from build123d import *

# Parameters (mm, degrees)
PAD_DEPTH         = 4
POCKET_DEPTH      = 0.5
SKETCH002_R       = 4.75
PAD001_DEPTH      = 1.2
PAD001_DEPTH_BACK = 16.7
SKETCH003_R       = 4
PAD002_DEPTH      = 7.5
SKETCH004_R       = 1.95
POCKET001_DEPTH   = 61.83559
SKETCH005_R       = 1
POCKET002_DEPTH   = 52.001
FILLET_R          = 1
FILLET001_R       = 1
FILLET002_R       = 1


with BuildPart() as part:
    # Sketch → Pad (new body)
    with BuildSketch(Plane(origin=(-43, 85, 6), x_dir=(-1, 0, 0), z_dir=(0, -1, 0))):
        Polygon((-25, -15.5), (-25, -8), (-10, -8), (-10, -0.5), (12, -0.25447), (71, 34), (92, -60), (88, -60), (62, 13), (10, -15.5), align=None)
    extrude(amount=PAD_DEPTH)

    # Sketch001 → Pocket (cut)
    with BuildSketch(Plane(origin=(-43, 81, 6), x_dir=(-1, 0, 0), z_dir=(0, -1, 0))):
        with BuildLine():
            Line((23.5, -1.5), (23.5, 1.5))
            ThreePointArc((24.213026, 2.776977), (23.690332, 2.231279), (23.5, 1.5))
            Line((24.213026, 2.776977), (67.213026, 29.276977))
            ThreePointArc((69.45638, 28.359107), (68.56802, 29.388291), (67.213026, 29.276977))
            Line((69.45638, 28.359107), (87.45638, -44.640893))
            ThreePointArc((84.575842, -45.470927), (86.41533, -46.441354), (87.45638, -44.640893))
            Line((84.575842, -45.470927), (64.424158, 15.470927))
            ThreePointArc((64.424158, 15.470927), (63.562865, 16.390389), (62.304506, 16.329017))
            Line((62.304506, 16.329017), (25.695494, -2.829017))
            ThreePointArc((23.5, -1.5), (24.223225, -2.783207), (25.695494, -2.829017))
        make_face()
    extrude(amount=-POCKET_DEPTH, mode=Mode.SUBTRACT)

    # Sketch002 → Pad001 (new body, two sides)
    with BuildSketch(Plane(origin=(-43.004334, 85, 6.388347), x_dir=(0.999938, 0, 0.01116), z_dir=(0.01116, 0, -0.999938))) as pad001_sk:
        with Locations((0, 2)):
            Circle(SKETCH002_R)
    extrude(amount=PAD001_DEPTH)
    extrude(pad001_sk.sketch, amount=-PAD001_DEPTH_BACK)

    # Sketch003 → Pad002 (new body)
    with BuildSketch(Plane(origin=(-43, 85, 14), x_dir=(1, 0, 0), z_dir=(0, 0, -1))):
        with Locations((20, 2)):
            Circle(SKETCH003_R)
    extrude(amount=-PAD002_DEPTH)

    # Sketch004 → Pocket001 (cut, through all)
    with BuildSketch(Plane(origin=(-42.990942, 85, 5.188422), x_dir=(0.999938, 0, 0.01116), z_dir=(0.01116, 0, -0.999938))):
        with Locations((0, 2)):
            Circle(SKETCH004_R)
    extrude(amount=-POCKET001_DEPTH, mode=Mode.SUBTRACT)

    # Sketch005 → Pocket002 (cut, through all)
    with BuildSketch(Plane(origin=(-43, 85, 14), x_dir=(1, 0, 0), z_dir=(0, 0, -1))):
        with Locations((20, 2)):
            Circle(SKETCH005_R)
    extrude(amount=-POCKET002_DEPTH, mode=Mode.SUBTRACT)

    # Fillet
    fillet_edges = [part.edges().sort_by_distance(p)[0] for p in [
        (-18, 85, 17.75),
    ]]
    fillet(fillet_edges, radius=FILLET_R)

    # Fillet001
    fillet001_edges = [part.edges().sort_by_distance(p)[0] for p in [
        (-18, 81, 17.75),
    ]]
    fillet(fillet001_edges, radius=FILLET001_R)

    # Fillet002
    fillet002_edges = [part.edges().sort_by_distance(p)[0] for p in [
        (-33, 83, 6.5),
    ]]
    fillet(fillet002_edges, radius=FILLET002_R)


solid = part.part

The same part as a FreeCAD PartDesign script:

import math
import FreeCAD as App
import Part
import Sketcher


def edges_at(feature, points):
    """Names of the edges that pass closest to the given points."""
    edges = feature.Shape.Edges
    near = lambda p: min(range(len(edges)), key=lambda i: edges[i].distToShape(Part.Vertex(*p))[0])
    return sorted({f"Edge{near(p) + 1}" for p in points})

doc = App.newDocument("Part")
body = doc.addObject("PartDesign::Body", "Body")

sketch1 = doc.addObject("Sketcher::SketchObject", "Sketch")
body.addObject(sketch1)
sketch1.AttachmentSupport = (doc.XZ_Plane, [""])
sketch1.MapMode = "FlatFace"
sketch1.AttachmentOffset = App.Placement(App.Vector(0, 0, -85), App.Rotation())
sketch1.addGeometry(Part.LineSegment(App.Vector(-18, 14, 0), App.Vector(-18, 21.5, 0)), False)
sketch1.addGeometry(Part.LineSegment(App.Vector(-18, 21.5, 0), App.Vector(-53, 21.5, 0)), False)
sketch1.addGeometry(Part.LineSegment(App.Vector(-53, 21.5, 0), App.Vector(-105, -7, 0)), False)
sketch1.addGeometry(Part.LineSegment(App.Vector(-105, -7, 0), App.Vector(-131, 66, 0)), False)
sketch1.addGeometry(Part.LineSegment(App.Vector(-131, 66, 0), App.Vector(-135, 66, 0)), False)
sketch1.addGeometry(Part.LineSegment(App.Vector(-135, 66, 0), App.Vector(-114, -28, 0)), False)
sketch1.addGeometry(Part.LineSegment(App.Vector(-114, -28, 0), App.Vector(-55, 6.3, 0)), False)
sketch1.addGeometry(Part.LineSegment(App.Vector(-55, 6.3, 0), App.Vector(-33, 6.5, 0)), False)
sketch1.addGeometry(Part.LineSegment(App.Vector(-33, 6.5, 0), App.Vector(-33, 14, 0)), False)
sketch1.addGeometry(Part.LineSegment(App.Vector(-33, 14, 0), App.Vector(-18, 14, 0)), False)
sketch1.addConstraint(Sketcher.Constraint("Coincident", 0, 2, 1, 1))
sketch1.addConstraint(Sketcher.Constraint("Coincident", 1, 2, 2, 1))
sketch1.addConstraint(Sketcher.Constraint("Coincident", 2, 2, 3, 1))
sketch1.addConstraint(Sketcher.Constraint("Coincident", 3, 2, 4, 1))
sketch1.addConstraint(Sketcher.Constraint("Coincident", 4, 2, 5, 1))
sketch1.addConstraint(Sketcher.Constraint("Coincident", 5, 2, 6, 1))
sketch1.addConstraint(Sketcher.Constraint("Coincident", 6, 2, 7, 1))
sketch1.addConstraint(Sketcher.Constraint("Coincident", 7, 2, 8, 1))
sketch1.addConstraint(Sketcher.Constraint("Coincident", 8, 2, 9, 1))
sketch1.addConstraint(Sketcher.Constraint("Coincident", 9, 2, 0, 1))
sketch1.addConstraint(Sketcher.Constraint("Vertical", 0))
sketch1.addConstraint(Sketcher.Constraint("Horizontal", 1))
sketch1.addConstraint(Sketcher.Constraint("Horizontal", 4))
sketch1.addConstraint(Sketcher.Constraint("Vertical", 8))
sketch1.addConstraint(Sketcher.Constraint("Horizontal", 9))
sketch1.addConstraint(Sketcher.Constraint("Equal", 0, 8))
sketch1.addConstraint(Sketcher.Constraint("DistanceX", 1, 2, 1, 1, 35.0))
sketch1.addConstraint(Sketcher.Constraint("DistanceX", 4, 2, 4, 1, 4.0))
sketch1.addConstraint(Sketcher.Constraint("DistanceX", 9, 1, 9, 2, 15.0))
sketch1.addConstraint(Sketcher.Constraint("DistanceY", 0, 1, 0, 2, 7.5))
sketch1.addConstraint(Sketcher.Constraint("DistanceX", 0, 2, -1, 1, 18.0))
sketch1.addConstraint(Sketcher.Constraint("DistanceX", 2, 2, -1, 1, 105.0))
sketch1.addConstraint(Sketcher.Constraint("DistanceY", 2, 2, -1, 1, 7.0))
sketch1.addConstraint(Sketcher.Constraint("DistanceX", 3, 2, -1, 1, 131.0))
sketch1.addConstraint(Sketcher.Constraint("DistanceY", -1, 1, 3, 2, 66.0))
sketch1.addConstraint(Sketcher.Constraint("DistanceX", 5, 2, -1, 1, 114.0))
sketch1.addConstraint(Sketcher.Constraint("DistanceY", 5, 2, -1, 1, 28.0))
sketch1.addConstraint(Sketcher.Constraint("DistanceX", 6, 2, -1, 1, 55.0))
sketch1.addConstraint(Sketcher.Constraint("DistanceY", -1, 1, 8, 2, 14.0))
sketch1.addConstraint(Sketcher.Constraint("Distance", 7, 22.00137))
pad1 = doc.addObject("PartDesign::Pad", "Pad")
body.addObject(pad1)
pad1.Profile = sketch1
pad1.Length = 4

sketch2 = doc.addObject("Sketcher::SketchObject", "Sketch001")
body.addObject(sketch2)
sketch2.AttachmentSupport = (doc.XZ_Plane, [""])
sketch2.MapMode = "FlatFace"
sketch2.AttachmentOffset = App.Placement(App.Vector(0, 0, -81), App.Rotation())
sketch2.addGeometry(Part.LineSegment(App.Vector(-66.5, 4.5, 0), App.Vector(-66.5, 7.5, 0)), False)
sketch2.addGeometry(Part.ArcOfCircle(Part.Circle(App.Vector(-68, 7.5, 0), App.Vector(0, 0, 1), 1.5), math.radians(0), math.radians(118)), False)
sketch2.addGeometry(Part.LineSegment(App.Vector(-68.7, 8.8, 0), App.Vector(-105.3, -10.3, 0)), False)
sketch2.addGeometry(Part.ArcOfCircle(Part.Circle(App.Vector(-106, -9, 0), App.Vector(0, 0, 1), 1.5), math.radians(-162), math.radians(-62)), False)
sketch2.addGeometry(Part.LineSegment(App.Vector(-107.4, -9.5, 0), App.Vector(-127.6, 51.5, 0)), False)
sketch2.addGeometry(Part.ArcOfCircle(Part.Circle(App.Vector(-129, 51, 0), App.Vector(0, 0, 1), 1.5), math.radians(18), math.radians(194)), False)
sketch2.addGeometry(Part.LineSegment(App.Vector(-130.5, 50.6, 0), App.Vector(-112.5, -22.4, 0)), False)
sketch2.addGeometry(Part.ArcOfCircle(Part.Circle(App.Vector(-111, -22, 0), App.Vector(0, 0, 1), 1.5), math.radians(-166), math.radians(-58)), False)
sketch2.addGeometry(Part.LineSegment(App.Vector(-110.2, -23.3, 0), App.Vector(-67.2, 3.2, 0)), False)
sketch2.addGeometry(Part.ArcOfCircle(Part.Circle(App.Vector(-68, 4.5, 0), App.Vector(0, 0, 1), 1.5), math.radians(-58), math.radians(0)), False)
sketch2.addConstraint(Sketcher.Constraint("Tangent", 0, 2, 1, 1))
sketch2.addConstraint(Sketcher.Constraint("Tangent", 1, 2, 2, 1))
sketch2.addConstraint(Sketcher.Constraint("Tangent", 2, 2, 3, 2))
sketch2.addConstraint(Sketcher.Constraint("Tangent", 3, 1, 4, 1))
sketch2.addConstraint(Sketcher.Constraint("Tangent", 4, 2, 5, 1))
sketch2.addConstraint(Sketcher.Constraint("Tangent", 5, 2, 6, 1))
sketch2.addConstraint(Sketcher.Constraint("Tangent", 6, 2, 7, 1))
sketch2.addConstraint(Sketcher.Constraint("Tangent", 7, 2, 8, 1))
sketch2.addConstraint(Sketcher.Constraint("Tangent", 8, 2, 9, 1))
sketch2.addConstraint(Sketcher.Constraint("Tangent", 9, 2, 0, 1))
sketch2.addConstraint(Sketcher.Constraint("Vertical", 0))
sketch2.addConstraint(Sketcher.Constraint("Equal", 1, 3))
sketch2.addConstraint(Sketcher.Constraint("Equal", 3, 5))
sketch2.addConstraint(Sketcher.Constraint("Equal", 5, 7))
sketch2.addConstraint(Sketcher.Constraint("Equal", 7, 9))
sketch2.addConstraint(Sketcher.Constraint("Radius", 1, 1.499999))
sketch2.addConstraint(Sketcher.Constraint("DistanceY", 0, 1, 0, 2, 3.0))
sketch2.addConstraint(Sketcher.Constraint("DistanceX", 1, 3, -1, 1, 67.999999))
sketch2.addConstraint(Sketcher.Constraint("DistanceX", 3, 3, -1, 1, 106.0))
sketch2.addConstraint(Sketcher.Constraint("DistanceY", 3, 3, -1, 1, 9.0))
sketch2.addConstraint(Sketcher.Constraint("DistanceX", 5, 3, -1, 1, 129.0))
sketch2.addConstraint(Sketcher.Constraint("DistanceY", -1, 1, 5, 3, 51.0))
sketch2.addConstraint(Sketcher.Constraint("DistanceX", 7, 3, -1, 1, 111.0))
sketch2.addConstraint(Sketcher.Constraint("DistanceY", 7, 3, -1, 1, 21.999999))
sketch2.addConstraint(Sketcher.Constraint("DistanceY", -1, 1, 1, 3, 7.5))
pocket1 = doc.addObject("PartDesign::Pocket", "Pocket")
body.addObject(pocket1)
pocket1.Profile = sketch2
pocket1.Length = 0.5

sketch3 = doc.addObject("Sketcher::SketchObject", "Sketch002")
body.addObject(sketch3)
sketch3.Placement = App.Placement(App.Vector(-43.004334, 85, 6.388347), App.Rotation(App.Vector(0.999937725, 0, 0.011159997), App.Vector(0, -0.999999999, 0), App.Vector(0.011159997, 0, -0.999937725), "ZXY"))
sketch3.addGeometry(Part.Circle(App.Vector(0, 2, 0), App.Vector(0, 0, 1), 4.8), False)
sketch3.addConstraint(Sketcher.Constraint("PointOnObject", 0, 3, -2))
sketch3.addConstraint(Sketcher.Constraint("Diameter", 0, 9.5))
sketch3.addConstraint(Sketcher.Constraint("DistanceY", -1, 1, 0, 3, 2.0))
pad2 = doc.addObject("PartDesign::Pad", "Pad001")
body.addObject(pad2)
pad2.Profile = sketch3
pad2.Type = "TwoLengths"
pad2.Length = 1.2
pad2.Length2 = 16.7

sketch4 = doc.addObject("Sketcher::SketchObject", "Sketch003")
body.addObject(sketch4)
sketch4.AttachmentSupport = (doc.XY_Plane, [""])
sketch4.MapMode = "FlatFace"
sketch4.AttachmentOffset = App.Placement(App.Vector(0, 0, 14), App.Rotation())
sketch4.addGeometry(Part.Circle(App.Vector(-23, 83, 0), App.Vector(0, 0, 1), 4), False)
sketch4.addConstraint(Sketcher.Constraint("Diameter", 0, 8.0))
sketch4.addConstraint(Sketcher.Constraint("DistanceX", 0, 3, -1, 1, 23.0))
sketch4.addConstraint(Sketcher.Constraint("DistanceY", -1, 1, 0, 3, 83.0))
pad3 = doc.addObject("PartDesign::Pad", "Pad002")
body.addObject(pad3)
pad3.Profile = sketch4
pad3.Length = 7.5

sketch5 = doc.addObject("Sketcher::SketchObject", "Sketch004")
body.addObject(sketch5)
sketch5.Placement = App.Placement(App.Vector(-42.990942, 85, 5.188422), App.Rotation(App.Vector(0.999937725, 0, 0.011159997), App.Vector(0, -0.999999999, 0), App.Vector(0.011159997, 0, -0.999937725), "ZXY"))
sketch5.addGeometry(Part.Circle(App.Vector(0, 2, 0), App.Vector(0, 0, 1), 1.9), False)
sketch5.addConstraint(Sketcher.Constraint("PointOnObject", 0, 3, -2))
sketch5.addConstraint(Sketcher.Constraint("Diameter", 0, 3.9))
sketch5.addConstraint(Sketcher.Constraint("DistanceY", -1, 1, 0, 3, 2.0))
pocket2 = doc.addObject("PartDesign::Pocket", "Pocket001")
body.addObject(pocket2)
pocket2.Profile = sketch5
pocket2.Type = "ThroughAll"

sketch6 = doc.addObject("Sketcher::SketchObject", "Sketch005")
body.addObject(sketch6)
sketch6.AttachmentSupport = (doc.XY_Plane, [""])
sketch6.MapMode = "FlatFace"
sketch6.AttachmentOffset = App.Placement(App.Vector(0, 0, 14), App.Rotation())
sketch6.addGeometry(Part.Circle(App.Vector(-23, 83, 0), App.Vector(0, 0, 1), 1), False)
sketch6.addConstraint(Sketcher.Constraint("Diameter", 0, 2.0))
sketch6.addConstraint(Sketcher.Constraint("DistanceX", 0, 3, -1, 1, 23.0))
sketch6.addConstraint(Sketcher.Constraint("DistanceY", -1, 1, 0, 3, 83.0))
pocket3 = doc.addObject("PartDesign::Pocket", "Pocket002")
body.addObject(pocket3)
pocket3.Profile = sketch6
pocket3.Type = "ThroughAll"
pocket3.Reversed = True
doc.recompute()

fillet = doc.addObject("PartDesign::Fillet", "Fillet")
body.addObject(fillet)
fillet.Base = (pocket3, edges_at(pocket3, [(-18, 85, 17.75)]))
fillet.Radius = 1
doc.recompute()

fillet2 = doc.addObject("PartDesign::Fillet", "Fillet001")
body.addObject(fillet2)
fillet2.Base = (fillet, edges_at(fillet, [(-18, 81, 17.75)]))
fillet2.Radius = 1
doc.recompute()

fillet3 = doc.addObject("PartDesign::Fillet", "Fillet002")
body.addObject(fillet3)
fillet3.Base = (fillet2, edges_at(fillet2, [(-33, 83, 6.5)]))
fillet3.Radius = 1

doc.recompute()
